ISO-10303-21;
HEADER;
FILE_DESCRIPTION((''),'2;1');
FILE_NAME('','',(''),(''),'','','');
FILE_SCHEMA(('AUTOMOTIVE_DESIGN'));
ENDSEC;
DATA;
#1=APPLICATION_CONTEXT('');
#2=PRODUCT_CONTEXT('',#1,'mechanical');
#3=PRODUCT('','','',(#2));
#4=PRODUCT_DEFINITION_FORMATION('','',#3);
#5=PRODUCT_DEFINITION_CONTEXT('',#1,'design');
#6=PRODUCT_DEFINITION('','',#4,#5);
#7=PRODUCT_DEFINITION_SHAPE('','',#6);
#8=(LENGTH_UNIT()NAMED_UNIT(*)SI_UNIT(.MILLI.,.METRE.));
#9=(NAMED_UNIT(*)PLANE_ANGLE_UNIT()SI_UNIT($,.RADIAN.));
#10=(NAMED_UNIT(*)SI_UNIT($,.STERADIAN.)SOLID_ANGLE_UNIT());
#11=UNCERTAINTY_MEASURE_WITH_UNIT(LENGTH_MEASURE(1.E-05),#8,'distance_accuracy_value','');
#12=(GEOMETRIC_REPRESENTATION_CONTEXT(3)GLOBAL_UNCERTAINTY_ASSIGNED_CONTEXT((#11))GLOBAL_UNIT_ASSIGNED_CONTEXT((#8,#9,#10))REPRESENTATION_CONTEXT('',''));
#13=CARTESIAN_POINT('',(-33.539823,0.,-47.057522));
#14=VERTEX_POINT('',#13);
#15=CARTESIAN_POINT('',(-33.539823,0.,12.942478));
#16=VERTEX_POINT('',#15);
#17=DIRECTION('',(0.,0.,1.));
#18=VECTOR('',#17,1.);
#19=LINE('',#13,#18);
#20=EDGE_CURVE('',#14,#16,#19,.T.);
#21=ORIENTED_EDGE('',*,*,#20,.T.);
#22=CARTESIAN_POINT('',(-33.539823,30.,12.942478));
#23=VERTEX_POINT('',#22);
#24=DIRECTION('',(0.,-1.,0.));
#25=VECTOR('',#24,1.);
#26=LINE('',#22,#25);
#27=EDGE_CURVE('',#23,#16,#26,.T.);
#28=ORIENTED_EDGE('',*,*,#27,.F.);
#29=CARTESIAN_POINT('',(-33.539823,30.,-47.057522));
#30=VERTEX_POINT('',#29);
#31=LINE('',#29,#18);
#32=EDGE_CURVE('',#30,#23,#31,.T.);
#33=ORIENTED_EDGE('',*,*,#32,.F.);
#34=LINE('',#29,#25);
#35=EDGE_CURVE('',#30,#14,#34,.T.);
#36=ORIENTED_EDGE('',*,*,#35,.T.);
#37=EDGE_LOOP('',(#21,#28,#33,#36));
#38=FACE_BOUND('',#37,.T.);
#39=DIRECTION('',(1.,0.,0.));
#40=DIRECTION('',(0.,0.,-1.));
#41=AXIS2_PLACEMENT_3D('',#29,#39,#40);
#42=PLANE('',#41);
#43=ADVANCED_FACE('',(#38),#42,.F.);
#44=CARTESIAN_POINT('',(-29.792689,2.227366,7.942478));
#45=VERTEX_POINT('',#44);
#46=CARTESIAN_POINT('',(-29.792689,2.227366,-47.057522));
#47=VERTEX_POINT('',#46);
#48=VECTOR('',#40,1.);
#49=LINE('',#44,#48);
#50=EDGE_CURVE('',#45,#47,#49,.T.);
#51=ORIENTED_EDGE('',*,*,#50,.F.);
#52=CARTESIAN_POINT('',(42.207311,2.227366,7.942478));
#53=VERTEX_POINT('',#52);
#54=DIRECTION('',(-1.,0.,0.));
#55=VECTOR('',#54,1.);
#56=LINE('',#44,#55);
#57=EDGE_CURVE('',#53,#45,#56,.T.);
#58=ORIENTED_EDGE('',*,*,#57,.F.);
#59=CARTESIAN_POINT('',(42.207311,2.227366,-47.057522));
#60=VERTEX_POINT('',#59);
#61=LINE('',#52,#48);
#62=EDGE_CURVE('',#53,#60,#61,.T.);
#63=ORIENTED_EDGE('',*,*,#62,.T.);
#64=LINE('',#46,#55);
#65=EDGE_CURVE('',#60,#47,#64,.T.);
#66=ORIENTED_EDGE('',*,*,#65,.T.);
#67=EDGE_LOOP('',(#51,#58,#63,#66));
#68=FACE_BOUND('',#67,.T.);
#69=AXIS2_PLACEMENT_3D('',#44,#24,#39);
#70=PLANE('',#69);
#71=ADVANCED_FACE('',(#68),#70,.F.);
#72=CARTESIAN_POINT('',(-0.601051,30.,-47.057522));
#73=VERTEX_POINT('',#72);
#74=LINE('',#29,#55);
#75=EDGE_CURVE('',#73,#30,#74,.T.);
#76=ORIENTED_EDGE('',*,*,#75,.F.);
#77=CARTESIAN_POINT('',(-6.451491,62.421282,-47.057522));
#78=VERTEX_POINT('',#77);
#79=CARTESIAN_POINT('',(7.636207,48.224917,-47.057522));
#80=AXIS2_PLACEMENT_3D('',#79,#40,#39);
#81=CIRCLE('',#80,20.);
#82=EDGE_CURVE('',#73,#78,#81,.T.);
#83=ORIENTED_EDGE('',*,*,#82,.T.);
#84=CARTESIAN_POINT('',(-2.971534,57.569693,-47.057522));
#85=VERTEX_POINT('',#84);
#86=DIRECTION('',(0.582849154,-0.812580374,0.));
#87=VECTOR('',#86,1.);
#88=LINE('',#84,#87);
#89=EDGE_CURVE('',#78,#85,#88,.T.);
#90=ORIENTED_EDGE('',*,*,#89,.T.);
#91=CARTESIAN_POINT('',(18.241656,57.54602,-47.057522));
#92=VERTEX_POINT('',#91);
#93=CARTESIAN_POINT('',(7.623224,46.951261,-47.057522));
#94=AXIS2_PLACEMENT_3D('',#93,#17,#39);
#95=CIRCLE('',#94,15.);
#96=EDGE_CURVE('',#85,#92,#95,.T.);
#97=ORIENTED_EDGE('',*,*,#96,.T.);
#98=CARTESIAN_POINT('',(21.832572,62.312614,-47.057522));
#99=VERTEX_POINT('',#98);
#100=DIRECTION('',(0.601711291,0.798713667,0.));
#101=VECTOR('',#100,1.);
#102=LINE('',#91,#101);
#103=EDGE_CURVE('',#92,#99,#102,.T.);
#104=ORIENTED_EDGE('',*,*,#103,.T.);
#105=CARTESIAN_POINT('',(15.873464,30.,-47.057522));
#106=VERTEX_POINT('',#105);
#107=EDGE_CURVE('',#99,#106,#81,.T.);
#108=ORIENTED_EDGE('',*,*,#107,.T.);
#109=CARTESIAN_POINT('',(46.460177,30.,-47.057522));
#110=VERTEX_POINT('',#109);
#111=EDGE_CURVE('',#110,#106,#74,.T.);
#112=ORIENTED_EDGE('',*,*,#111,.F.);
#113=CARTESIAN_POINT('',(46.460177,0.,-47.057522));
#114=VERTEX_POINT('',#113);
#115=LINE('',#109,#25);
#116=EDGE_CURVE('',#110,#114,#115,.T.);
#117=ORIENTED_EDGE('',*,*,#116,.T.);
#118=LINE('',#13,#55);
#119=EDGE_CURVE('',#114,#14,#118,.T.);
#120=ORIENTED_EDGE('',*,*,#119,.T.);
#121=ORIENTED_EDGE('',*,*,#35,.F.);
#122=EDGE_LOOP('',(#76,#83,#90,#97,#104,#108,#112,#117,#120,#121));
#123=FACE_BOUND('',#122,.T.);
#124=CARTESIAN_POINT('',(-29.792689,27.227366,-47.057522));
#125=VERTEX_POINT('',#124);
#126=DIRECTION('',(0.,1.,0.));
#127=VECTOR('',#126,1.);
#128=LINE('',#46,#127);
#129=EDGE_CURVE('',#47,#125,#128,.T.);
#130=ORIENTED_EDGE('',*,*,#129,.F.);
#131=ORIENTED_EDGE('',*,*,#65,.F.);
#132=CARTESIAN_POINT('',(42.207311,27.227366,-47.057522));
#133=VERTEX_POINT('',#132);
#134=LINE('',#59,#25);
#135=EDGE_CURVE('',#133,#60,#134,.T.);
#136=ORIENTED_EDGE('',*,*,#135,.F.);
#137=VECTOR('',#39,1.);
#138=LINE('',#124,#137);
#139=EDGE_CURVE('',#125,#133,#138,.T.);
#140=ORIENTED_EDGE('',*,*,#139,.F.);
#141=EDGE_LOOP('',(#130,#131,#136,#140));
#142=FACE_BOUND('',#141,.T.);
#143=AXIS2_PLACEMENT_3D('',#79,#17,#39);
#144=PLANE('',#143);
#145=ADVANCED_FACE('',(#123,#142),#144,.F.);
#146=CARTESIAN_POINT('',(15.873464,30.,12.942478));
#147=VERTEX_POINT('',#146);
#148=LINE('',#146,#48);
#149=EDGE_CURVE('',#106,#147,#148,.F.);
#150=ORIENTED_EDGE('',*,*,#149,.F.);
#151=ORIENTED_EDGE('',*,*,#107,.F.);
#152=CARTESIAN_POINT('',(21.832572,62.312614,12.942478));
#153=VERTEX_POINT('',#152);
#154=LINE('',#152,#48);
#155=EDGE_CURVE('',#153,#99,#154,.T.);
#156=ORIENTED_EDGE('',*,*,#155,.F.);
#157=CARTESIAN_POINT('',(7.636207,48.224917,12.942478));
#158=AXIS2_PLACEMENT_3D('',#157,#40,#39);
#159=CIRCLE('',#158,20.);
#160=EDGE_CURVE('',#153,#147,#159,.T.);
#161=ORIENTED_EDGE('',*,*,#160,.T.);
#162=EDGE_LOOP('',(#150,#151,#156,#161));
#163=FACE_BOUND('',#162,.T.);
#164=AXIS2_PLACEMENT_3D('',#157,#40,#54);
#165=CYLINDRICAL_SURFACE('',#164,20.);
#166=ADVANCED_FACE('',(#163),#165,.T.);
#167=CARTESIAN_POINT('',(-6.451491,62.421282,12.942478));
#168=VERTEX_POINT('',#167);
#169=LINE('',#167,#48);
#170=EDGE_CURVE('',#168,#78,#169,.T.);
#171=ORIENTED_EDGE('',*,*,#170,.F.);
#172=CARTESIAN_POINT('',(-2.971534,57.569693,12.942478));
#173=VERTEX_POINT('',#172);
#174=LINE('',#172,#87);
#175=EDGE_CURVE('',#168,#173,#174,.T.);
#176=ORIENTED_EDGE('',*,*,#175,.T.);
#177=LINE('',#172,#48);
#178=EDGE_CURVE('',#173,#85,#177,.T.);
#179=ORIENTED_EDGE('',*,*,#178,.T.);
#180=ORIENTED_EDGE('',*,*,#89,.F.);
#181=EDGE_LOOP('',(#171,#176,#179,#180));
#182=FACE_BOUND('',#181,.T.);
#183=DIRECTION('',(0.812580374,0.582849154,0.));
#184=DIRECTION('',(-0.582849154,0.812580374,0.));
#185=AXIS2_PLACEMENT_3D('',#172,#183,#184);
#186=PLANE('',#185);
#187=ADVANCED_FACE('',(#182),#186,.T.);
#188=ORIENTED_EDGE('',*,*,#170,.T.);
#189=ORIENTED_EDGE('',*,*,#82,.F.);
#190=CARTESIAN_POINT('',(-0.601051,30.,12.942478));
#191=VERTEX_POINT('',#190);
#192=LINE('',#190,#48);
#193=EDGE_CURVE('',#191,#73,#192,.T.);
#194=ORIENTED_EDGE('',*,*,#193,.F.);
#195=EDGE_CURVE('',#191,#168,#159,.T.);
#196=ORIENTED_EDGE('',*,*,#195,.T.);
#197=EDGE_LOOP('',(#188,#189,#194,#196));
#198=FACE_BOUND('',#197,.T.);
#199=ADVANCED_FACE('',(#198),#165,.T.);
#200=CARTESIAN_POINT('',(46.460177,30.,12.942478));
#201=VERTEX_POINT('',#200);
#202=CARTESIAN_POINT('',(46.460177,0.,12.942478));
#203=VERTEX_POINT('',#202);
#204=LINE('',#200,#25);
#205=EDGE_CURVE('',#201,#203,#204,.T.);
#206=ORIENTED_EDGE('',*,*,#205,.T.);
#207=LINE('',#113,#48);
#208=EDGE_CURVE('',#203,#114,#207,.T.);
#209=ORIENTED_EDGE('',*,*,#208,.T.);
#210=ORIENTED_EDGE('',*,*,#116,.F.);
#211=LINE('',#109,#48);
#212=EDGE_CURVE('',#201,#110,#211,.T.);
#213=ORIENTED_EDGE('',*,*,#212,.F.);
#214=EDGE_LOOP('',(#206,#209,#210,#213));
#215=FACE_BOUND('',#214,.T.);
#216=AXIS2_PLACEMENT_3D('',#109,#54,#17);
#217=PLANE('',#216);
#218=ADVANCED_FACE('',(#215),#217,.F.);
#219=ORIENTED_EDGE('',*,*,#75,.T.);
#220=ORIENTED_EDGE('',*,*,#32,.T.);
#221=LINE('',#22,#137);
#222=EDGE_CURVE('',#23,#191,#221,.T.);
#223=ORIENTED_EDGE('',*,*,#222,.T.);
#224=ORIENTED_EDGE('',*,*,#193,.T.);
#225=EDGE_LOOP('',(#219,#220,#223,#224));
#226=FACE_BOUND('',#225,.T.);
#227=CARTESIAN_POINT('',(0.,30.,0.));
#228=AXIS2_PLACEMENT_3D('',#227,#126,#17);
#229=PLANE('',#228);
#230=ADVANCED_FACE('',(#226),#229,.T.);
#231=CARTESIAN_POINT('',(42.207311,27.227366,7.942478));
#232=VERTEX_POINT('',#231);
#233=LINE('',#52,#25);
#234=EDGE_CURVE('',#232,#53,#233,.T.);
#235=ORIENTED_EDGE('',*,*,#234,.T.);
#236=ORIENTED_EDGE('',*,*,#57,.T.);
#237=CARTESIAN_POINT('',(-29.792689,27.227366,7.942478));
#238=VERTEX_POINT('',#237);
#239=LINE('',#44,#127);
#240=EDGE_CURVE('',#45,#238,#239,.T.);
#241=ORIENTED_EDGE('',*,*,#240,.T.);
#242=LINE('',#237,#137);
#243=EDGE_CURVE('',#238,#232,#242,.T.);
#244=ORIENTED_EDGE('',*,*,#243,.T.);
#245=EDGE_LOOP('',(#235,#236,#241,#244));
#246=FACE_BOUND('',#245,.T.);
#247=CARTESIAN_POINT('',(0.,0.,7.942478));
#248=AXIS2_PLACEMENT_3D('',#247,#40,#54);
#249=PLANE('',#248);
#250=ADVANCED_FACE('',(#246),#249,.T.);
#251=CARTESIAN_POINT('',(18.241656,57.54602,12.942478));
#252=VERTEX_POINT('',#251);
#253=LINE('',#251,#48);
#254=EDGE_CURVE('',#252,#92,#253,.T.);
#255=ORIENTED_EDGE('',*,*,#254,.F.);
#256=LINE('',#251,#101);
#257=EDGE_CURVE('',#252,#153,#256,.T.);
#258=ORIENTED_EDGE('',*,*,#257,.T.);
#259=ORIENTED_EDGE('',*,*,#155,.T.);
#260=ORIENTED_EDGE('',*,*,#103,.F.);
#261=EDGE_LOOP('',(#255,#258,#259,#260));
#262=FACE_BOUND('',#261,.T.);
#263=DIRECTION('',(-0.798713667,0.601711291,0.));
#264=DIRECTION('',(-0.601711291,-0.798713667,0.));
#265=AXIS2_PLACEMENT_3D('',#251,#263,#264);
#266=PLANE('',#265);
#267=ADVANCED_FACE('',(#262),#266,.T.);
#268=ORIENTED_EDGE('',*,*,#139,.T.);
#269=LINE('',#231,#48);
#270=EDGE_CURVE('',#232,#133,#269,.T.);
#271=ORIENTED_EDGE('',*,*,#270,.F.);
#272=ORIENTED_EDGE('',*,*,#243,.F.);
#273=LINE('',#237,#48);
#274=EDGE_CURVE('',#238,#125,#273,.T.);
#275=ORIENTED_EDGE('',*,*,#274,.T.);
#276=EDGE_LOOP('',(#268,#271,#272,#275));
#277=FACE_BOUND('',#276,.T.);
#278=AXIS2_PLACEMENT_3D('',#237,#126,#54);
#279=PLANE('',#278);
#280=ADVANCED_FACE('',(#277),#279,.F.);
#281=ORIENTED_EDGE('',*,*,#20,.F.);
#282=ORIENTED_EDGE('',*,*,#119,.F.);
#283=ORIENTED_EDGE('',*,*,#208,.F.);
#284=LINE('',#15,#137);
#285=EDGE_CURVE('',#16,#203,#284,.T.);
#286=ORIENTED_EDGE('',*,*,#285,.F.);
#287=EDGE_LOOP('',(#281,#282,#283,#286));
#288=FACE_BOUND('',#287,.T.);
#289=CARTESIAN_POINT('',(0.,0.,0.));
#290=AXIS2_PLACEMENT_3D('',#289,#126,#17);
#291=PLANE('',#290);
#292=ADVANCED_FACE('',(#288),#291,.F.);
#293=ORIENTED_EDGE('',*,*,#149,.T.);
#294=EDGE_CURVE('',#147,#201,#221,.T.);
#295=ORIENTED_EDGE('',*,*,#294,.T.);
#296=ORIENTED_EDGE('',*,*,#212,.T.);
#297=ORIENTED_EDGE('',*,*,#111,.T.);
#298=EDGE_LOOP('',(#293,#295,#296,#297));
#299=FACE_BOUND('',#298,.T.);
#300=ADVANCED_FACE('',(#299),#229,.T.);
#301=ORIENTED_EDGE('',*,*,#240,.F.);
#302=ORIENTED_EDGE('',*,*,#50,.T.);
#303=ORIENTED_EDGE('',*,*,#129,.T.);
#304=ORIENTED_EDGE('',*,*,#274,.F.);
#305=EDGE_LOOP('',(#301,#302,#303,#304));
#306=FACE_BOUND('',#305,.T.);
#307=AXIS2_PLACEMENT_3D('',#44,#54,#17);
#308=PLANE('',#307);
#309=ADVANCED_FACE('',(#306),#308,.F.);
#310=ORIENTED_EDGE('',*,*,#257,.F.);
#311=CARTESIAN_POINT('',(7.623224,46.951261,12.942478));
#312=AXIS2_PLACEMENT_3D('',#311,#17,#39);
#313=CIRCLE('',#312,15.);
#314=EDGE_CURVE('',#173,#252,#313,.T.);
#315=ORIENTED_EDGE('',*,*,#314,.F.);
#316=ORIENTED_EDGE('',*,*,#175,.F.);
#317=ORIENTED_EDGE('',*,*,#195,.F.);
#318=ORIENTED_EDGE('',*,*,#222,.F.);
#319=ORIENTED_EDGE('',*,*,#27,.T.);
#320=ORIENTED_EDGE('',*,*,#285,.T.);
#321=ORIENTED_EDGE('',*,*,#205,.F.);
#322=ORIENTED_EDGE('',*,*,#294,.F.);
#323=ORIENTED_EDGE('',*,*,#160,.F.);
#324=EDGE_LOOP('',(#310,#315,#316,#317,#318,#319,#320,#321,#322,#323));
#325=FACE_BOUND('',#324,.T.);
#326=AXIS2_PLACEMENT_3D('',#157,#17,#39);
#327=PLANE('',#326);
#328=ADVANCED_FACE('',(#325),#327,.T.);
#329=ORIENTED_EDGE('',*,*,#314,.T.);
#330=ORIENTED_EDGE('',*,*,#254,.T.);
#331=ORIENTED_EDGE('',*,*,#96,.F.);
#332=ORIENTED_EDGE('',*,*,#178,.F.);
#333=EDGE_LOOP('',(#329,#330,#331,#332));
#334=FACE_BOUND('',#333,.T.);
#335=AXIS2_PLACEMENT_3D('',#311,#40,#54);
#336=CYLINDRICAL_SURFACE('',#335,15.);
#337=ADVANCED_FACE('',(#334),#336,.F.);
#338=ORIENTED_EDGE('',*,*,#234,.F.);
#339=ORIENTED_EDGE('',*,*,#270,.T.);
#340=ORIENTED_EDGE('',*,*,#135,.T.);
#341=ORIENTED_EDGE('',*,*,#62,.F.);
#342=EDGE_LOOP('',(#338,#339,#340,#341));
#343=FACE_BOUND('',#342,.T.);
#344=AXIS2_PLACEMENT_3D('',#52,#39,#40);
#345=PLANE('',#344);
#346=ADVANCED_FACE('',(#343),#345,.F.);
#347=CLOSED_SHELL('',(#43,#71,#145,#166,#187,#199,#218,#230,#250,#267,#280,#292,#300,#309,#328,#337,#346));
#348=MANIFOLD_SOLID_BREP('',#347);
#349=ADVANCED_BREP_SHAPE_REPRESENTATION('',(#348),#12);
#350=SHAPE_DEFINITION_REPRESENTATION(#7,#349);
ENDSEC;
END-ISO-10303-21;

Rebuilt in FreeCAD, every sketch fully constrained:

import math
import FreeCAD as App
import Part
import Sketcher

V = App.Vector
Q = App.Units.Quantity

doc = App.newDocument("Part")
body = doc.addObject("PartDesign::Body", "Body")

# Sketch on XZ plane
sketch1 = doc.addObject("Sketcher::SketchObject", "Sketch")
body.addObject(sketch1)
sketch1.AttachmentSupport = (doc.XZ_Plane, [""])
sketch1.MapMode = "FlatFace"
sketch1.addGeometry([
    Part.LineSegment(V(-34, -47, 0), V(-34, 13, 0)),
    Part.LineSegment(V(-34, 13, 0), V(46, 13, 0)),
    Part.LineSegment(V(46, 13, 0), V(46, -47, 0)),
    Part.LineSegment(V(46, -47, 0), V(-34, -47, 0)),
], False)
sketch1.addConstraint([
    Sketcher.Constraint("Coincident", 0, 2, 1, 1),
    Sketcher.Constraint("Coincident", 1, 2, 2, 1),
    Sketcher.Constraint("Coincident", 2, 2, 3, 1),
    Sketcher.Constraint("Coincident", 3, 2, 0, 1),
    Sketcher.Constraint("Vertical", 0),
    Sketcher.Constraint("Horizontal", 1),
    Sketcher.Constraint("Vertical", 2),
    Sketcher.Constraint("Horizontal", 3),
    Sketcher.Constraint("DistanceX", 1, 1, 1, 2, Q("80 mm")),
    Sketcher.Constraint("DistanceY", 0, 1, 0, 2, Q("60 mm")),
    Sketcher.Constraint("DistanceX", 0, 2, -1, 1, Q("33.539823 mm")),
    Sketcher.Constraint("DistanceY", -1, 1, 0, 2, Q("12.942478 mm")),
])
pad1 = doc.addObject("PartDesign::Pad", "Pad")
body.addObject(pad1)
pad1.Profile = sketch1
pad1.Length = 30
pad1.Reversed = True

# Sketch on XY plane
sketch2 = doc.addObject("Sketcher::SketchObject", "Sketch001")
body.addObject(sketch2)
sketch2.AttachmentSupport = (doc.XY_Plane, [""])
sketch2.MapMode = "FlatFace"
sketch2.AttachmentOffset = App.Placement(V(0, 0, -47.057522), App.Rotation())
sketch2.addGeometry([
    Part.LineSegment(V(42, 27, 0), V(42, 2, 0)),
    Part.LineSegment(V(42, 2, 0), V(-30, 2, 0)),
    Part.LineSegment(V(-30, 2, 0), V(-30, 27, 0)),
    Part.LineSegment(V(-30, 27, 0), V(42, 27, 0)),
], False)
sketch2.addConstraint([
    Sketcher.Constraint("Coincident", 0, 2, 1, 1),
    Sketcher.Constraint("Coincident", 1, 2, 2, 1),
    Sketcher.Constraint("Coincident", 2, 2, 3, 1),
    Sketcher.Constraint("Coincident", 3, 2, 0, 1),
    Sketcher.Constraint("Vertical", 0),
    Sketcher.Constraint("Horizontal", 1),
    Sketcher.Constraint("Vertical", 2),
    Sketcher.Constraint("Horizontal", 3),
    Sketcher.Constraint("DistanceX", 1, 2, 1, 1, Q("72 mm")),
    Sketcher.Constraint("DistanceY", 0, 2, 0, 1, Q("25 mm")),
    Sketcher.Constraint("DistanceX", -1, 1, 0, 2, Q("42.207311 mm")),
    Sketcher.Constraint("DistanceY", -1, 1, 0, 2, Q("2.227366 mm")),
])
pocket1 = doc.addObject("PartDesign::Pocket", "Pocket")
body.addObject(pocket1)
pocket1.Profile = sketch2
pocket1.Length = 55
pocket1.Reversed = True
body2 = doc.addObject("PartDesign::Body", "Body001")

# Sketch on XY plane
sketch3 = doc.addObject("Sketcher::SketchObject", "Sketch002")
body2.addObject(sketch3)
sketch3.AttachmentSupport = (doc.getObject("XY_Plane001"), [""])
sketch3.MapMode = "FlatFace"
sketch3.AttachmentOffset = App.Placement(V(0, 0, -47.057522), App.Rotation())
sketch3.addGeometry([
    Part.LineSegment(V(18, 58, 0), V(22, 62, 0)),
    Part.ArcOfCircle(Part.Circle(V(8, 48, 0), V(0, 0, 1), 20), math.radians(135), math.radians(405)),
    Part.LineSegment(V(-6, 62, 0), V(-3, 58, 0)),
    Part.ArcOfCircle(Part.Circle(V(8, 47, 0), V(0, 0, 1), 15), math.radians(135), math.radians(405)),
], False)
sketch3.addConstraint([
    Sketcher.Constraint("Coincident", 0, 2, 1, 2),
    Sketcher.Constraint("Coincident", 1, 1, 2, 1),
    Sketcher.Constraint("Coincident", 2, 2, 3, 1),
    Sketcher.Constraint("Coincident", 3, 2, 0, 1),
    Sketcher.Constraint("Radius", 1, Q("20 mm")),
    Sketcher.Constraint("Radius", 3, Q("15 mm")),
    Sketcher.Constraint("Distance", 0, Q("5.967838 mm")),
    Sketcher.Constraint("DistanceY", -1, 1, 3, 3, Q("46.951261 mm")),
    Sketcher.Constraint("DistanceX", -1, 1, 0, 2, Q("21.832572 mm")),
    Sketcher.Constraint("DistanceX", 1, 1, -1, 1, Q("6.451491 mm")),
    Sketcher.Constraint("DistanceY", -1, 1, 1, 1, Q("62.421282 mm")),
    Sketcher.Constraint("DistanceY", -1, 1, 3, 2, Q("57.54602 mm")),
    Sketcher.Constraint("DistanceY", 2, 2, 1, 1, Q("4.851589 mm")),
    Sketcher.Constraint("DistanceX", 2, 2, 1, 3, Q("10.607741 mm")),
])
pad2 = doc.addObject("PartDesign::Pad", "Pad001")
body2.addObject(pad2)
pad2.Profile = sketch3
pad2.Length = 60
doc.recompute()

boolean = doc.addObject("PartDesign::Boolean", "Boolean")
body2.addObject(boolean)
boolean.Type = "Fuse"
boolean.addObjects([body])

doc.recompute()
